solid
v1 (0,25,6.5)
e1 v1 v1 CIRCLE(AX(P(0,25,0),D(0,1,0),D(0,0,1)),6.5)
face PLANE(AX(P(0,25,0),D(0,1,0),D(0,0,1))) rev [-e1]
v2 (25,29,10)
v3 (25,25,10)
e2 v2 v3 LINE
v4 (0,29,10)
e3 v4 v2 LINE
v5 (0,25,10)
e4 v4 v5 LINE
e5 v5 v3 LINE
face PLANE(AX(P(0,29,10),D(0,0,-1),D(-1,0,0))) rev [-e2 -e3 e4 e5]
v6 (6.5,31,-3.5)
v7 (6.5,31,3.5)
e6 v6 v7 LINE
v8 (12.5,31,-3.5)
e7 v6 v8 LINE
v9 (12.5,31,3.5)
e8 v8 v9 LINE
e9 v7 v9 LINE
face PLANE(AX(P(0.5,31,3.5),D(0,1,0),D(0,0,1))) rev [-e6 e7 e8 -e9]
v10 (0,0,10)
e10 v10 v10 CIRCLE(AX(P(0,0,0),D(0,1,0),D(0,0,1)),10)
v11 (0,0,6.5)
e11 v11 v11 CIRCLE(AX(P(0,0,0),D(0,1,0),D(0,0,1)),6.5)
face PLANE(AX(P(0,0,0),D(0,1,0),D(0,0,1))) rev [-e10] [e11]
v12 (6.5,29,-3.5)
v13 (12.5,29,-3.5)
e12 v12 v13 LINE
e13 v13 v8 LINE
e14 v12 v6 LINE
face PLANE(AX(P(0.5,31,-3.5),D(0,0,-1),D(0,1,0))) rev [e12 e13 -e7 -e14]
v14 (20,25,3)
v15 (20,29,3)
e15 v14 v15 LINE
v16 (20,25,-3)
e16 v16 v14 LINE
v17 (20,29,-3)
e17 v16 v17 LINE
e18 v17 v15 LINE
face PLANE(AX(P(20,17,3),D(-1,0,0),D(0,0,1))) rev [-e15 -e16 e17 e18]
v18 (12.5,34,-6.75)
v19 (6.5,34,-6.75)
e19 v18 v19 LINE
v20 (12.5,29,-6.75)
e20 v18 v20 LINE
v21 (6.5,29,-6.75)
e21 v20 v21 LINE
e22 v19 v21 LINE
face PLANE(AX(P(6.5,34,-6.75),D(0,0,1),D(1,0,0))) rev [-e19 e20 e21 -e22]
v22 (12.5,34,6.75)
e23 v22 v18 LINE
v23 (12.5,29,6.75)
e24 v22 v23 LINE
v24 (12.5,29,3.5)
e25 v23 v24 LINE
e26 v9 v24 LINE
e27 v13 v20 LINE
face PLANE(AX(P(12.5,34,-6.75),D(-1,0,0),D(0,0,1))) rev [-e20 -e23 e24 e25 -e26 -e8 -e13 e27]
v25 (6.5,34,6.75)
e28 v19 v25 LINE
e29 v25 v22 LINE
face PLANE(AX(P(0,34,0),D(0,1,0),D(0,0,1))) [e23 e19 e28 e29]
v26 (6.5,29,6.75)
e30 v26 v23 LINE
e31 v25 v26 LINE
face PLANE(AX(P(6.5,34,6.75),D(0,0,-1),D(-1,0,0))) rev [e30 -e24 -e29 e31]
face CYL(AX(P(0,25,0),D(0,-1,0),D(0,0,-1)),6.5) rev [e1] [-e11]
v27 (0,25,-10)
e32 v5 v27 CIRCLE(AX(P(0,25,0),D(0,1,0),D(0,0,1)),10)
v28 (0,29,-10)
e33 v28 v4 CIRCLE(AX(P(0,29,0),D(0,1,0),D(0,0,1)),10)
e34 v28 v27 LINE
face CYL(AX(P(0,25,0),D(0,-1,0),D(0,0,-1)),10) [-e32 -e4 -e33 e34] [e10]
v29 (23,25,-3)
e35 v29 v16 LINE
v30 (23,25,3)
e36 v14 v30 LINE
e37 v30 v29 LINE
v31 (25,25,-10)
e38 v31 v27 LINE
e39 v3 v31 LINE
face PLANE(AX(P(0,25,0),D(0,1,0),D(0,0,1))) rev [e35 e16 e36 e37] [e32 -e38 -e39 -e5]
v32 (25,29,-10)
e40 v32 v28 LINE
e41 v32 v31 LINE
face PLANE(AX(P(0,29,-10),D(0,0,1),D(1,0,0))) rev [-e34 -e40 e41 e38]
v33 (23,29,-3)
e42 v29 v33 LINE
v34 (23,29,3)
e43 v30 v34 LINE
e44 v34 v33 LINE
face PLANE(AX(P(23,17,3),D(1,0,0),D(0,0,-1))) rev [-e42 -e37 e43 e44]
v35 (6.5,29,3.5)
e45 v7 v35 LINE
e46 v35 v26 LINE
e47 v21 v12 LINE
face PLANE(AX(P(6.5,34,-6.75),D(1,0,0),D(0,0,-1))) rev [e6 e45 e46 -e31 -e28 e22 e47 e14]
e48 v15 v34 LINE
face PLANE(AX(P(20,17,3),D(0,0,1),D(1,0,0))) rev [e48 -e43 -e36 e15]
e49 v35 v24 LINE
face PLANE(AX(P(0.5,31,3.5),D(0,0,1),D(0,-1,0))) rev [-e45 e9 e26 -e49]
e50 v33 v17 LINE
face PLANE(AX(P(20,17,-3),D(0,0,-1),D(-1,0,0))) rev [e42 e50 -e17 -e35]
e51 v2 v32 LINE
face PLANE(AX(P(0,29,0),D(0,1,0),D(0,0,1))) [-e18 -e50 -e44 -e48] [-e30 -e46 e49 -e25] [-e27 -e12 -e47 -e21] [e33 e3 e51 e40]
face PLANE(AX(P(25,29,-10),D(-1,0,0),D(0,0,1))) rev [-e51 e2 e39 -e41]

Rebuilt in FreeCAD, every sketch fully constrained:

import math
import FreeCAD as App
import Part
import Sketcher
from FreeCAD import Vector


def add_polygon(sketch, points):
    """Adds a closed chain of lines whose ends are joined by coincident constraints."""
    first, n = sketch.GeometryCount, len(points)
    for a, b in zip(points, points[1:] + points[:1]):
        sketch.addGeometry(Part.LineSegment(App.Vector(*a, 0), App.Vector(*b, 0)), False)
    for i in range(n):
        sketch.addConstraint(Sketcher.Constraint("Coincident", first + i, 2, first + (i + 1) % n, 1))

doc = App.newDocument("Part")
params = doc.addObject("Spreadsheet::Sheet", "Params")
for row, (alias, value) in enumerate([
    ("sketch1_diameter", "20 mm"),
    ("sketch1_diameter2", "13 mm"),
    ("pad1_length", "25 mm"),
    ("sketch2_radius", "10 mm"),
    ("sketch2_width", "25 mm"),
    ("pad2_length", "4 mm"),
    ("sketch3_width", "6 mm"),
    ("sketch3_height", "13.5 mm"),
    ("pad3_length", "5 mm"),
    ("sketch4_width", "2 mm"),
    ("sketch4_height", "7 mm"),
    ("pocket1_length", "12 mm"),
    ("sketch5_width", "3 mm"),
    ("sketch5_height", "6 mm"),
    ("pocket2_length", "12 mm"),
], start=1):
    params.set(f"A{row}", alias)
    params.set(f"B{row}", "=" + value)
    params.setAlias(f"B{row}", alias)

body = doc.addObject("PartDesign::Body", "Body")

sketch1 = body.newObject("Sketcher::SketchObject", "Sketch")
sketch1.AttachmentSupport = (doc.getObject("XZ_Plane"), [""])
sketch1.MapMode = "FlatFace"
sketch1.addGeometry([
    Part.Circle(Vector(0, 0, 0), Vector(0, 0, 1), 10),
    Part.Circle(Vector(0, 0, 0), Vector(0, 0, 1), 6),
], False)
sketch1.addConstraint([
    Sketcher.Constraint("Coincident", 0, 3, -1, 1),
    Sketcher.Constraint("Coincident", 1, 3, -1, 1),
    Sketcher.Constraint("Diameter", 0, 20.0),
    Sketcher.Constraint("Diameter", 1, 13.0),
])
sketch1.setExpression("Constraints[2]", "Params.sketch1_diameter")
sketch1.setExpression("Constraints[3]", "Params.sketch1_diameter2")
pad1 = body.newObject("PartDesign::Pad", "Pad")
pad1.Profile = sketch1
pad1.setExpression("Length", "Params.pad1_length")
pad1.Reversed = True

sketch2 = body.newObject("Sketcher::SketchObject", "Sketch001")
sketch2.AttachmentSupport = (doc.getObject("XZ_Plane"), [""])
sketch2.MapMode = "FlatFace"
sketch2.AttachmentOffset = App.Placement(Vector(0, 0, -25), App.Rotation())
sketch2.addGeometry([
    Part.LineSegment(Vector(25, -10, 0), Vector(0, -10, 0)),
    Part.ArcOfCircle(Part.Circle(Vector(0, 0, 0), Vector(0, 0, 1), 10), math.radians(90), math.radians(270)),
    Part.LineSegment(Vector(0, 10, 0), Vector(25, 10, 0)),
    Part.LineSegment(Vector(25, 10, 0), Vector(25, -10, 0)),
], False)
sketch2.addConstraint([
    Sketcher.Constraint("Tangent", 0, 2, 1, 2),
    Sketcher.Constraint("Tangent", 1, 1, 2, 1),
    Sketcher.Constraint("Coincident", 2, 2, 3, 1),
    Sketcher.Constraint("Coincident", 3, 2, 0, 1),
    Sketcher.Constraint("Horizontal", 0),
    Sketcher.Constraint("Horizontal", 2),
    Sketcher.Constraint("Vertical", 3),
    Sketcher.Constraint("Coincident", 1, 3, -1, 1),
    Sketcher.Constraint("Radius", 1, 10.0),
    Sketcher.Constraint("DistanceX", 0, 2, 0, 1, 25.0),
])
sketch2.setExpression("Constraints[8]", "Params.sketch2_radius")
sketch2.setExpression("Constraints[9]", "Params.sketch2_width")
pad2 = body.newObject("PartDesign::Pad", "Pad001")
pad2.Profile = sketch2
pad2.setExpression("Length", "Params.pad2_length")
pad2.Reversed = True

sketch3 = body.newObject("Sketcher::SketchObject", "Sketch002")
sketch3.AttachmentSupport = (doc.getObject("XZ_Plane"), [""])
sketch3.MapMode = "FlatFace"
sketch3.AttachmentOffset = App.Placement(Vector(0, 0, -29), App.Rotation())
add_polygon(sketch3, [(6, -7), (6, 7), (12, 7), (12, -7)])
sketch3.addConstraint([
    Sketcher.Constraint("Vertical", 0),
    Sketcher.Constraint("Horizontal", 1),
    Sketcher.Constraint("Vertical", 2),
    Sketcher.Constraint("Horizontal", 3),
    Sketcher.Constraint("DistanceX", 1, 1, 1, 2, 6.0),
    Sketcher.Constraint("DistanceY", 0, 1, 0, 2, 13.5),
    Sketcher.Constraint("DistanceX", -1, 1, 0, 2, 6.5),
    Sketcher.Constraint("DistanceY", -1, 1, 0, 2, 6.75),
])
sketch3.setExpression("Constraints[8]", "Params.sketch3_width")
sketch3.setExpression("Constraints[9]", "Params.sketch3_height")
pad3 = body.newObject("PartDesign::Pad", "Pad002")
pad3.Profile = sketch3
pad3.setExpression("Length", "Params.pad3_length")
pad3.Reversed = True

sketch4 = body.newObject("Sketcher::SketchObject", "Sketch003")
sketch4.AttachmentSupport = (doc.getObject("YZ_Plane"), [""])
sketch4.MapMode = "FlatFace"
sketch4.AttachmentOffset = App.Placement(Vector(0, 0, 12.5), App.Rotation())
add_polygon(sketch4, [(31, 3.5), (29, 3.5), (29, -3.5), (31, -3.5)])
sketch4.addConstraint([
    Sketcher.Constraint("Horizontal", 0),
    Sketcher.Constraint("Vertical", 1),
    Sketcher.Constraint("Horizontal", 2),
    Sketcher.Constraint("Vertical", 3),
    Sketcher.Constraint("DistanceX", 0, 2, 0, 1, 2.0),
    Sketcher.Constraint("DistanceY", 1, 2, 1, 1, 7.0),
    Sketcher.Constraint("DistanceX", -1, 1, 0, 2, 29.0),
    Sketcher.Constraint("DistanceY", -1, 1, 0, 2, 3.5),
])
sketch4.setExpression("Constraints[8]", "Params.sketch4_width")
sketch4.setExpression("Constraints[9]", "Params.sketch4_height")
pocket1 = body.newObject("PartDesign::Pocket", "Pocket")
pocket1.Profile = sketch4
pocket1.setExpression("Length", "Params.pocket1_length")

sketch5 = body.newObject("Sketcher::SketchObject", "Sketch004")
sketch5.AttachmentSupport = (doc.getObject("XZ_Plane"), [""])
sketch5.MapMode = "FlatFace"
sketch5.AttachmentOffset = App.Placement(Vector(0, 0, -29), App.Rotation())
add_polygon(sketch5, [(20, -3), (20, 3), (23, 3), (23, -3)])
sketch5.addConstraint([
    Sketcher.Constraint("Vertical", 0),
    Sketcher.Constraint("Horizontal", 1),
    Sketcher.Constraint("Vertical", 2),
    Sketcher.Constraint("Horizontal", 3),
    Sketcher.Constraint("DistanceX", 1, 1, 1, 2, 3.0),
    Sketcher.Constraint("DistanceY", 0, 1, 0, 2, 6.0),
    Sketcher.Constraint("DistanceX", -1, 1, 0, 2, 20.0),
    Sketcher.Constraint("DistanceY", -1, 1, 0, 2, 3.0),
])
sketch5.setExpression("Constraints[8]", "Params.sketch5_width")
sketch5.setExpression("Constraints[9]", "Params.sketch5_height")
pocket2 = body.newObject("PartDesign::Pocket", "Pocket001")
pocket2.Profile = sketch5
pocket2.setExpression("Length", "Params.pocket2_length")
pocket2.Reversed = True

doc.recompute()
